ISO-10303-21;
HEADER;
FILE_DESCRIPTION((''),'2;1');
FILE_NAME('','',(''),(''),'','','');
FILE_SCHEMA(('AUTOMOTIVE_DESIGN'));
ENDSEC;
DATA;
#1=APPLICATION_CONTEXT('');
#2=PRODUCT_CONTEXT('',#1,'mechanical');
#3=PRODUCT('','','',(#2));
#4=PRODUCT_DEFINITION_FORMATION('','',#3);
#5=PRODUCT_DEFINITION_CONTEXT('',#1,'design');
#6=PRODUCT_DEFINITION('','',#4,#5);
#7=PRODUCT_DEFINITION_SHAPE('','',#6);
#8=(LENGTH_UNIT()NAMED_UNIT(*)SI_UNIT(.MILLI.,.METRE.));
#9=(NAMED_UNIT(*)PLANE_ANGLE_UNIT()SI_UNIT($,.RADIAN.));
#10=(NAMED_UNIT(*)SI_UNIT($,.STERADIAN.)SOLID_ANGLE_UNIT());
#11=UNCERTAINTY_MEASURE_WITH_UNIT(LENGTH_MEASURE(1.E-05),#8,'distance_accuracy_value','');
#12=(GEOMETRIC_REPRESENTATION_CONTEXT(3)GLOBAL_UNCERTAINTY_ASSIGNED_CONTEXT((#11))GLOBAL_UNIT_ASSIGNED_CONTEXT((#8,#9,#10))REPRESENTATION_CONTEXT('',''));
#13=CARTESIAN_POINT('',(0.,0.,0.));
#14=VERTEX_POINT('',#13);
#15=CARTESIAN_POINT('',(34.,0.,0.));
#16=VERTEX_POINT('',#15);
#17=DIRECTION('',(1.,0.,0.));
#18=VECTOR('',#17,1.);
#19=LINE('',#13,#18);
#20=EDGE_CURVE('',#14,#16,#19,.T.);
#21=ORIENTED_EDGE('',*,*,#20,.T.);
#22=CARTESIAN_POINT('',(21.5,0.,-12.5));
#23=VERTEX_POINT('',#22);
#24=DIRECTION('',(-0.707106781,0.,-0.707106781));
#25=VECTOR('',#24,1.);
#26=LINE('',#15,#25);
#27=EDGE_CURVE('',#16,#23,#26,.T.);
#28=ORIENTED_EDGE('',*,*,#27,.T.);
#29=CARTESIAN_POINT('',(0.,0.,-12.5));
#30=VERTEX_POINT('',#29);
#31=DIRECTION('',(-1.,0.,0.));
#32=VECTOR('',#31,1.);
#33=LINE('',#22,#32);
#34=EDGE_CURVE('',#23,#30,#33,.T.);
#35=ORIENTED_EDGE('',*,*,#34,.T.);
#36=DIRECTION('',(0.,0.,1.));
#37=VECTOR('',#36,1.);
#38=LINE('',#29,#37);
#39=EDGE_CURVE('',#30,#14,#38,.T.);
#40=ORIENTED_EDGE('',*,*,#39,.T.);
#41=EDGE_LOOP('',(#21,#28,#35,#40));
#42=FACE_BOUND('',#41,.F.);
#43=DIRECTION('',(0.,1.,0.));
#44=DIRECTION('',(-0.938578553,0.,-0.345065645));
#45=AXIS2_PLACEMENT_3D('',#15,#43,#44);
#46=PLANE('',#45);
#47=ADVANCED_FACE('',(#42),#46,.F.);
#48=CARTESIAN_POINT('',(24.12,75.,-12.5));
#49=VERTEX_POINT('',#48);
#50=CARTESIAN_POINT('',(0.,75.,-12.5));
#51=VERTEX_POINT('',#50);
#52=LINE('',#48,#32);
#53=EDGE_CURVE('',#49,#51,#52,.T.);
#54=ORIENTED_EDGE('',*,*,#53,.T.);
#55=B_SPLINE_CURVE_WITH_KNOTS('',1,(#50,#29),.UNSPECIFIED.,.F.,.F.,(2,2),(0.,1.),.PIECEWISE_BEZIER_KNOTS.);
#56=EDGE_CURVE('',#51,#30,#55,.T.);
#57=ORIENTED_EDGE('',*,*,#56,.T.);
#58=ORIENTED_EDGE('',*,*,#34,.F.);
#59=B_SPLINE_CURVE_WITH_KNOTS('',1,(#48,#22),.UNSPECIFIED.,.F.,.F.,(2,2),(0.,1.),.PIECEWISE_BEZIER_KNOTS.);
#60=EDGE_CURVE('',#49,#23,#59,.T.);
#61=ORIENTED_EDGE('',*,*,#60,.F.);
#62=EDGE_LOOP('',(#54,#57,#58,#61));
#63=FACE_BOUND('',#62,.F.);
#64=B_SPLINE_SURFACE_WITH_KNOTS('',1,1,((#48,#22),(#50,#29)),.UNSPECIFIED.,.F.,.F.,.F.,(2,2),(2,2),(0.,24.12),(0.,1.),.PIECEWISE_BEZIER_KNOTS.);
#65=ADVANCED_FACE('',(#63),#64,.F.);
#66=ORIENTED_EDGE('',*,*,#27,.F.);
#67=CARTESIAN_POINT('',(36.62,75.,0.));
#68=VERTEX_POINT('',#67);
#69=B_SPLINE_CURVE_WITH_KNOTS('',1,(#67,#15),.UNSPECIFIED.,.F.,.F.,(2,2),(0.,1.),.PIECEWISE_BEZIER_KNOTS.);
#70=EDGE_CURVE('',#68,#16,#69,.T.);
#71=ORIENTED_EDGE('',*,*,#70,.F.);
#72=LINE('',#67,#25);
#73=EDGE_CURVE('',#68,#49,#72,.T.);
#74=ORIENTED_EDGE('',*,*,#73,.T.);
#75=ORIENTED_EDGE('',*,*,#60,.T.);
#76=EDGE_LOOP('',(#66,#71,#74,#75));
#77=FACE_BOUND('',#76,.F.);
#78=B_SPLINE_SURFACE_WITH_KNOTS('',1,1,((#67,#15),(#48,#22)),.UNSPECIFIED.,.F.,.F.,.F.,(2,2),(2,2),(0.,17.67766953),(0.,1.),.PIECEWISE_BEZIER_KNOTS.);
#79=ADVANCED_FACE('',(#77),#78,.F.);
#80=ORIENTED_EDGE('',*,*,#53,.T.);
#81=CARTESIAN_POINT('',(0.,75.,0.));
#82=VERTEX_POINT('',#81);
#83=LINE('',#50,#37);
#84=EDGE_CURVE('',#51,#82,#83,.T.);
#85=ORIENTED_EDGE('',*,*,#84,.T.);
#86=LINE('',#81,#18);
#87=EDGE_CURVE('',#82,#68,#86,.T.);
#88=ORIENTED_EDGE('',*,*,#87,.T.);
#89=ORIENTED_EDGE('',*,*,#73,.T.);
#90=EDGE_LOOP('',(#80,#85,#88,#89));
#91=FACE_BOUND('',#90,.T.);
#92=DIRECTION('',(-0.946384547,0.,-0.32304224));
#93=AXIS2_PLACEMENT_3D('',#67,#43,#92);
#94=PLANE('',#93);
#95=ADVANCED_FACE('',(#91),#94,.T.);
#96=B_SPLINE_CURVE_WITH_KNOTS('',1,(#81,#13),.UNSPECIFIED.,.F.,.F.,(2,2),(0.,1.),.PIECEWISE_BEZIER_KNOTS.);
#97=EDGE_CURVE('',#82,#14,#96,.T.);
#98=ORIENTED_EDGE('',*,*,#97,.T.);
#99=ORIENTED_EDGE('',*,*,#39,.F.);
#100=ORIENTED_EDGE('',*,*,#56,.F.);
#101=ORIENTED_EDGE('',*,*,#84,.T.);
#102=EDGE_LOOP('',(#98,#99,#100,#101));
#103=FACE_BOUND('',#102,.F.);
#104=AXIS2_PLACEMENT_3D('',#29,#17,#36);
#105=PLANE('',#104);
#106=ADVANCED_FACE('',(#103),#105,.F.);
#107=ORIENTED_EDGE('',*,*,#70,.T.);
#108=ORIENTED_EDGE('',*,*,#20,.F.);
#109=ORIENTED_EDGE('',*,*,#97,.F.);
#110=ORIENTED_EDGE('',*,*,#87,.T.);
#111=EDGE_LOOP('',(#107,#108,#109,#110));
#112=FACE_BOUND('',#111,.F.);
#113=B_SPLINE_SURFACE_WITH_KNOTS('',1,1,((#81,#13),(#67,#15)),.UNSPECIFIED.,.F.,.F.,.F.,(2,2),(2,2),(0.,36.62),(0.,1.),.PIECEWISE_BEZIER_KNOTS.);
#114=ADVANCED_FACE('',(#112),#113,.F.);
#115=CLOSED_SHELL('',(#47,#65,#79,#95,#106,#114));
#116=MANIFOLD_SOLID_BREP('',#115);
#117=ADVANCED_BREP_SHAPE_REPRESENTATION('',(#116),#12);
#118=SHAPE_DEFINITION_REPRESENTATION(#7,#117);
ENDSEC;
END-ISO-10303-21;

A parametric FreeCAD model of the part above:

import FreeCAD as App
import Part
import Sketcher
from FreeCAD import Vector
Q = App.Units.Quantity


def add_polygon(sketch, points):
    """Adds a closed chain of lines whose ends are joined by coincident constraints."""
    first, n = sketch.GeometryCount, len(points)
    for a, b in zip(points, points[1:] + points[:1]):
        sketch.addGeometry(Part.LineSegment(App.Vector(*a, 0), App.Vector(*b, 0)), False)
    for i in range(n):
        sketch.addConstraint(Sketcher.Constraint("Coincident", first + i, 2, first + (i + 1) % n, 1))

doc = App.newDocument("Part")
body = doc.addObject("PartDesign::Body", "Body")

# Sketch on XZ plane
sketch1 = body.newObject("Sketcher::SketchObject", "Sketch")
sketch1.AttachmentSupport = (doc.getObject("XZ_Plane"), [""])
sketch1.MapMode = "FlatFace"
sketch1.AttachmentOffset = App.Placement(Vector(0, 0, -75), App.Rotation())
add_polygon(sketch1, [(24.12, -12.5), (36.62, 0), (0, 0), (0, -12.5)])  # lines 0-3
sketch1.addConstraint([
    Sketcher.Constraint("Horizontal", 1),
    Sketcher.Constraint("Vertical", 2),
    Sketcher.Constraint("Horizontal", 3),
    Sketcher.Constraint("Coincident", 1, 2, -1, 1),
    Sketcher.Constraint("Angle", 0, Q("45 deg")),
    Sketcher.Constraint("DistanceY", 2, 2, 2, 1, Q("12.5 mm")),
    Sketcher.Constraint("DistanceX", 1, 2, 1, 1, Q("36.62 mm")),
])

# Sketch on XZ plane
sketch2 = body.newObject("Sketcher::SketchObject", "Sketch001")
sketch2.AttachmentSupport = (doc.getObject("XZ_Plane"), [""])
sketch2.MapMode = "FlatFace"
add_polygon(sketch2, [(0, 0), (34, 0), (21.5, -12.5), (0, -12.5)])  # lines 0-3
sketch2.addConstraint([
    Sketcher.Constraint("Horizontal", 0),
    Sketcher.Constraint("Horizontal", 2),
    Sketcher.Constraint("Vertical", 3),
    Sketcher.Constraint("Coincident", 3, 2, -1, 1),
    Sketcher.Constraint("DistanceX", 0, 1, 0, 2, Q("34 mm")),
    Sketcher.Constraint("Angle", 1, Q("-135 deg")),
    Sketcher.Constraint("DistanceX", 2, 2, 2, 1, Q("21.5 mm")),
])

additiveloft = body.newObject("PartDesign::AdditiveLoft", "AdditiveLoft")
additiveloft.Profile = sketch1
additiveloft.Sections = [sketch2]

doc.recompute()
